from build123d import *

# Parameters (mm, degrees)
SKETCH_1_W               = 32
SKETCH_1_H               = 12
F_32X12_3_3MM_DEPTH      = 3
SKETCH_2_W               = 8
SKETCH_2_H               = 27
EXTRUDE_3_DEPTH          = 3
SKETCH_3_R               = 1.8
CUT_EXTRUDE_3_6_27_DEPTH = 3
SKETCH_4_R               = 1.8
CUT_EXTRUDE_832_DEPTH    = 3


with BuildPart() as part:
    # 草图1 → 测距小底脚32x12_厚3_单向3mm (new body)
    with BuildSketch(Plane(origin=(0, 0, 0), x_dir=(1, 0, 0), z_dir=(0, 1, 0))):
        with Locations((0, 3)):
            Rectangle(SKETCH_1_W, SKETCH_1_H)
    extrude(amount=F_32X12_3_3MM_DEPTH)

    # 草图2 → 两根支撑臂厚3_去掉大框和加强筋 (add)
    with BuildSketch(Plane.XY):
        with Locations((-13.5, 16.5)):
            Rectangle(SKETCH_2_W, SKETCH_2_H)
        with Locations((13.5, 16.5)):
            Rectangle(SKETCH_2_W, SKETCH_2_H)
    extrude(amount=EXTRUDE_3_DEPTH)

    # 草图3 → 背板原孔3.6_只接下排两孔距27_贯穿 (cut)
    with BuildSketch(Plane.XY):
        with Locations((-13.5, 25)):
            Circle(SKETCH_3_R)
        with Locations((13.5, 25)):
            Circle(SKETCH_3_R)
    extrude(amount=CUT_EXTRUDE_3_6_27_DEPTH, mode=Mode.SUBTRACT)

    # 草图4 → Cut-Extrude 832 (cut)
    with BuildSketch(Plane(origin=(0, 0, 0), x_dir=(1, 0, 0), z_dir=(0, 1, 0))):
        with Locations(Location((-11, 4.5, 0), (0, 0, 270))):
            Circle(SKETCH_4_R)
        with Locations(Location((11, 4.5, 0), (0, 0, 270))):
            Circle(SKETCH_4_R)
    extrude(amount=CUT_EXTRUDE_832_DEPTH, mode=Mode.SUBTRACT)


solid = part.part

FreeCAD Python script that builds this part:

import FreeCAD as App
import Part
import Sketcher
from FreeCAD import Vector

doc = App.newDocument("Part")
body = doc.addObject("PartDesign::Body", "Body")

# Sketch on XZ plane
sketch1 = body.newObject("Sketcher::SketchObject", "Sketch")
sketch1.AttachmentSupport = (doc.getObject("XZ_Plane"), [""])
sketch1.MapMode = "FlatFace"
sketch1.addGeometry([
    Part.LineSegment(Vector(-16, -9, 0), Vector(-16, 3, 0)),
    Part.LineSegment(Vector(-16, 3, 0), Vector(16, 3, 0)),
    Part.LineSegment(Vector(16, 3, 0), Vector(16, -9, 0)),
    Part.LineSegment(Vector(16, -9, 0), Vector(-16, -9, 0)),
], False)
sketch1.addConstraint([
    Sketcher.Constraint("Coincident", 0, 2, 1, 1),
    Sketcher.Constraint("Coincident", 1, 2, 2, 1),
    Sketcher.Constraint("Coincident", 2, 2, 3, 1),
    Sketcher.Constraint("Coincident", 3, 2, 0, 1),
    Sketcher.Constraint("Vertical", 0),
    Sketcher.Constraint("Horizontal", 1),
    Sketcher.Constraint("Vertical", 2),
    Sketcher.Constraint("Horizontal", 3),
    Sketcher.Constraint("DistanceX", 1, 1, 1, 2, 32.0),
    Sketcher.Constraint("DistanceY", 0, 1, 0, 2, 12.0),
    Sketcher.Constraint("DistanceX", 0, 2, -1, 1, 16.0),
    Sketcher.Constraint("DistanceY", -1, 1, 0, 2, 3.0),
])
pad1 = body.newObject("PartDesign::Pad", "Pad")
pad1.Profile = sketch1
pad1.Length = 3
pad1.Reversed = True

# Sketch on XY plane
sketch2 = body.newObject("Sketcher::SketchObject", "Sketch001")
sketch2.AttachmentSupport = (doc.getObject("XY_Plane"), [""])
sketch2.MapMode = "FlatFace"
sketch2.addGeometry([
    Part.LineSegment(Vector(-18, 30, 0), Vector(-18, 3, 0)),  # 0
    Part.LineSegment(Vector(-18, 3, 0), Vector(-10, 3, 0)),  # 1
    Part.LineSegment(Vector(-10, 3, 0), Vector(-10, 30, 0)),  # 2
    Part.LineSegment(Vector(-10, 30, 0), Vector(-18, 30, 0)),  # 3
    Part.LineSegment(Vector(10, 30, 0), Vector(10, 3, 0)),  # 4
    Part.LineSegment(Vector(10, 3, 0), Vector(18, 3, 0)),  # 5
    Part.LineSegment(Vector(18, 3, 0), Vector(18, 30, 0)),  # 6
    Part.LineSegment(Vector(18, 30, 0), Vector(10, 30, 0)),  # 7
], False)
sketch2.addConstraint([
    Sketcher.Constraint("Coincident", 0, 2, 1, 1),
    Sketcher.Constraint("Coincident", 1, 2, 2, 1),
    Sketcher.Constraint("Coincident", 2, 2, 3, 1),
    Sketcher.Constraint("Coincident", 3, 2, 0, 1),
    Sketcher.Constraint("Coincident", 4, 2, 5, 1),
    Sketcher.Constraint("Coincident", 5, 2, 6, 1),
    Sketcher.Constraint("Coincident", 6, 2, 7, 1),
    Sketcher.Constraint("Coincident", 7, 2, 4, 1),
    Sketcher.Constraint("Vertical", 0),
    Sketcher.Constraint("Horizontal", 1),
    Sketcher.Constraint("Vertical", 2),
    Sketcher.Constraint("Horizontal", 3),
    Sketcher.Constraint("Vertical", 4),
    Sketcher.Constraint("Horizontal", 5),
    Sketcher.Constraint("Vertical", 6),
    Sketcher.Constraint("Horizontal", 7),
    Sketcher.Constraint("Symmetric", 1, 2, 4, 2, -2),
    Sketcher.Constraint("Symmetric", 3, 2, 6, 2, -2),
    Sketcher.Constraint("DistanceX", 1, 1, 1, 2, 8.0),
    Sketcher.Constraint("DistanceY", 0, 2, 0, 1, 27.0),
    Sketcher.Constraint("DistanceY", -1, 1, 0, 2, 3.0),
    Sketcher.Constraint("DistanceX", 1, 2, 4, 2, 19.0),
])
pad2 = body.newObject("PartDesign::Pad", "Pad001")
pad2.Profile = sketch2
pad2.Length = 3

# Sketch on XY plane
sketch3 = body.newObject("Sketcher::SketchObject", "Sketch002")
sketch3.AttachmentSupport = (doc.getObject("XY_Plane"), [""])
sketch3.MapMode = "FlatFace"
sketch3.addGeometry([
    Part.Circle(Vector(-13.5, 25, 0), Vector(0, 0, 1), 1.8),
    Part.Circle(Vector(13.5, 25, 0), Vector(0, 0, 1), 1.8),
], False)
sketch3.addConstraint([
    Sketcher.Constraint("Equal", 0, 1),
    Sketcher.Constraint("Symmetric", 0, 3, 1, 3, -2),
    Sketcher.Constraint("Diameter", 0, 3.6),
    Sketcher.Constraint("DistanceY", -1, 1, 0, 3, 25.0),
    Sketcher.Constraint("DistanceX", 0, 3, 1, 3, 27.0),
])
pocket1 = body.newObject("PartDesign::Pocket", "Pocket")
pocket1.Profile = sketch3
pocket1.Length = 3
pocket1.Reversed = True

# Sketch on XZ plane
sketch4 = body.newObject("Sketcher::SketchObject", "Sketch003")
sketch4.AttachmentSupport = (doc.getObject("XZ_Plane"), [""])
sketch4.MapMode = "FlatFace"
sketch4.addGeometry([
    Part.Circle(Vector(-11, -4.5, 0), Vector(0, 0, 1), 1.8),
    Part.Circle(Vector(11, -4.5, 0), Vector(0, 0, 1), 1.8),
], False)
sketch4.addConstraint([
    Sketcher.Constraint("Equal", 0, 1),
    Sketcher.Constraint("Symmetric", 0, 3, 1, 3, -2),
    Sketcher.Constraint("Diameter", 0, 3.6),
    Sketcher.Constraint("DistanceX", 0, 3, -1, 1, 11.0),
    Sketcher.Constraint("DistanceY", 0, 3, -1, 1, 4.5),
])
pocket2 = body.newObject("PartDesign::Pocket", "Pocket001")
pocket2.Profile = sketch4
pocket2.Length = 3

doc.recompute()
